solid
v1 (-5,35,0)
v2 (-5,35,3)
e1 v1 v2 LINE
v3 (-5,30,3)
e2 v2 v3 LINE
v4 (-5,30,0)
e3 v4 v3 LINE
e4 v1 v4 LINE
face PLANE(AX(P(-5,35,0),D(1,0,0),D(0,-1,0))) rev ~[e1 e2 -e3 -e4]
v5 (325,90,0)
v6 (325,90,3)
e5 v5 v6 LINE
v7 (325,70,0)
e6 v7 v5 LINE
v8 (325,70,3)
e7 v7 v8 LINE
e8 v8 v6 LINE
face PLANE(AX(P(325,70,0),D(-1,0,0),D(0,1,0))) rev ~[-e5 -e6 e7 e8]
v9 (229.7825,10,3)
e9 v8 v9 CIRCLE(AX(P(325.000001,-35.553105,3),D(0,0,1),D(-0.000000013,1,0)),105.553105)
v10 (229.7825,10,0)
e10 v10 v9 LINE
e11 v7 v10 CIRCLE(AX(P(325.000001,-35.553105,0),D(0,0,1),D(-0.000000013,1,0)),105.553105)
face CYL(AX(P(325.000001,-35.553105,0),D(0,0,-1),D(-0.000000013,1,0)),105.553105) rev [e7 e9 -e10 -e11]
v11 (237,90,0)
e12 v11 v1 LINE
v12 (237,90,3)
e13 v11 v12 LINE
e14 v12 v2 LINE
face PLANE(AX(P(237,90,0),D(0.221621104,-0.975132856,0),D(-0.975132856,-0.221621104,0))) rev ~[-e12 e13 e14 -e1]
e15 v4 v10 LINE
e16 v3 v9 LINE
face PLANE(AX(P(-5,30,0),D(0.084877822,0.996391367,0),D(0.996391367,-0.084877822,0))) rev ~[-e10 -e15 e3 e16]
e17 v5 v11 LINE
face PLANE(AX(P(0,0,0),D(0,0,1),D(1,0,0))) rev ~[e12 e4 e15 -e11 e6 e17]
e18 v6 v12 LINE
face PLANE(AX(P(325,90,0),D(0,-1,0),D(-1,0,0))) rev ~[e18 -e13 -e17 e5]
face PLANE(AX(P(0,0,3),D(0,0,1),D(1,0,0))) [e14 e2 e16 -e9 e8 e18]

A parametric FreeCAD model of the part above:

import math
import FreeCAD as App
import Part
import Sketcher

doc = App.newDocument("Part")
params = doc.addObject("Spreadsheet::Sheet", "Params")
for row, (alias, value) in enumerate([
    ("sketch1_height", "5 mm"),
    ("sketch1_width", "88 mm"),
    ("sketch1_height2", "20 mm"),
    ("pad1_length", "3 mm"),
], start=1):
    params.set(f"A{row}", alias)
    params.set(f"B{row}", "=" + value)
    params.setAlias(f"B{row}", alias)

body = doc.addObject("PartDesign::Body", "Body")

# Sketch on XY plane
sketch1 = body.newObject("Sketcher::SketchObject", "Sketch")
sketch1.AttachmentSupport = (doc.getObject("XY_Plane"), [""])
sketch1.MapMode = "FlatFace"
sketch1.addGeometry([
    Part.LineSegment(App.Vector(237, 90, 0), App.Vector(-5, 35, 0)),  # 0
    Part.LineSegment(App.Vector(-5, 35, 0), App.Vector(-5, 30, 0)),  # 1
    Part.LineSegment(App.Vector(-5, 30, 0), App.Vector(230, 10, 0)),  # 2
    Part.ArcOfCircle(Part.Circle(App.Vector(325, -36, 0), App.Vector(0, 0, 1), 106), math.radians(90), math.radians(154)),  # 3
    Part.LineSegment(App.Vector(325, 70, 0), App.Vector(325, 90, 0)),  # 4
    Part.LineSegment(App.Vector(325, 90, 0), App.Vector(237, 90, 0)),  # 5
], False)
sketch1.addConstraint([
    Sketcher.Constraint("Coincident", 0, 2, 1, 1),
    Sketcher.Constraint("Coincident", 1, 2, 2, 1),
    Sketcher.Constraint("Coincident", 2, 2, 3, 2),
    Sketcher.Constraint("Coincident", 3, 1, 4, 1),
    Sketcher.Constraint("Coincident", 4, 2, 5, 1),
    Sketcher.Constraint("Coincident", 5, 2, 0, 1),
    Sketcher.Constraint("Vertical", 1),
    Sketcher.Constraint("Vertical", 4),
    Sketcher.Constraint("Horizontal", 5),
    Sketcher.Constraint("DistanceY", 1, 2, 1, 1, 5.0),
    Sketcher.Constraint("DistanceX", 0, 2, -1, 1, 5.0),
    Sketcher.Constraint("DistanceY", -1, 1, 1, 2, 30.0),
    Sketcher.Constraint("DistanceY", -1, 1, 2, 2, 10.0),
    Sketcher.Constraint("DistanceY", -1, 1, 3, 1, 70.0),
    Sketcher.Constraint("DistanceX", 0, 2, 3, 3, 330.0),
    Sketcher.Constraint("DistanceX", 0, 2, 3, 1, 330.0),
    Sketcher.Constraint("DistanceX", 5, 2, 5, 1, 88.0),
    Sketcher.Constraint("DistanceY", 4, 1, 4, 2, 20.0),
    Sketcher.Constraint("Radius", 3, 105.553),
])
sketch1.setExpression("Constraints[9]", "Params.sketch1_height")
sketch1.setExpression("Constraints[16]", "Params.sketch1_width")
sketch1.setExpression("Constraints[17]", "Params.sketch1_height2")
pad1 = body.newObject("PartDesign::Pad", "Pad")
pad1.Profile = sketch1
pad1.setExpression("Length", "Params.pad1_length")

doc.recompute()
